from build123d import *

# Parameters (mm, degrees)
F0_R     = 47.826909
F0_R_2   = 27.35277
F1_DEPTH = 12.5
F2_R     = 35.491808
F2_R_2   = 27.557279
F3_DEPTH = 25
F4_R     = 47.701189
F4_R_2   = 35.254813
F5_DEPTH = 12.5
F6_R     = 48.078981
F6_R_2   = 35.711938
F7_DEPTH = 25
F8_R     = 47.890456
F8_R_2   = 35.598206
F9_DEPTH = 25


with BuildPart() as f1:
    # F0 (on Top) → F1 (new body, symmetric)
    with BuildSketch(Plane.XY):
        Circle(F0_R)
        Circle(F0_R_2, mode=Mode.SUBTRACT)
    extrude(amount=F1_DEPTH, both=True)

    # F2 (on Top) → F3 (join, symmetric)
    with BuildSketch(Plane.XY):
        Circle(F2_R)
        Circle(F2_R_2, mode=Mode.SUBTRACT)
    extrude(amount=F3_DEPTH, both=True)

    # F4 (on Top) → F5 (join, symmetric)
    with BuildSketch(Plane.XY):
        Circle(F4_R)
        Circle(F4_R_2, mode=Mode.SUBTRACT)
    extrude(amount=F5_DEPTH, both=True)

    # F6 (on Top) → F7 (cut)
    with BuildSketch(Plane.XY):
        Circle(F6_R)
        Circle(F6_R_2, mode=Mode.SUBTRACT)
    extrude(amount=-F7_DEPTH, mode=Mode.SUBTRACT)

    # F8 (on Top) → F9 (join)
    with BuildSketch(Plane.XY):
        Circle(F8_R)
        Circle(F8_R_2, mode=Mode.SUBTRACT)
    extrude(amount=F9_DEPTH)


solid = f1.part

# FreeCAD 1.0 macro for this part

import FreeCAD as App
import Part
import Sketcher
from FreeCAD import Vector

doc = App.newDocument("Part")
body = doc.addObject("PartDesign::Body", "Body")

# Sketch on XY plane
sketch1 = doc.addObject("Sketcher::SketchObject", "Sketch")
body.addObject(sketch1)
sketch1.AttachmentSupport = (doc.XY_Plane, [""])
sketch1.MapMode = "FlatFace"
sketch1.addGeometry([
    Part.Circle(Vector(0, 0, 0), Vector(0, 0, 1), 47.826909),
    Part.Circle(Vector(0, 0, 0), Vector(0, 0, 1), 27.35277),
], False)
sketch1.addConstraint([
    Sketcher.Constraint("Coincident", 0, 3, -1, 1),
    Sketcher.Constraint("Coincident", 1, 3, -1, 1),
    Sketcher.Constraint("Diameter", 0, 95.653818),
    Sketcher.Constraint("Diameter", 1, 54.70554),
])
pad1 = doc.addObject("PartDesign::Pad", "Pad")
body.addObject(pad1)
pad1.Profile = sketch1
pad1.Length = 25
pad1.Midplane = True

# Sketch on XY plane
sketch2 = doc.addObject("Sketcher::SketchObject", "Sketch001")
body.addObject(sketch2)
sketch2.AttachmentSupport = (doc.XY_Plane, [""])
sketch2.MapMode = "FlatFace"
sketch2.addGeometry([
    Part.Circle(Vector(0, 0, 0), Vector(0, 0, 1), 35.491808),
    Part.Circle(Vector(0, 0, 0), Vector(0, 0, 1), 27.557279),
], False)
sketch2.addConstraint([
    Sketcher.Constraint("Coincident", 0, 3, -1, 1),
    Sketcher.Constraint("Coincident", 1, 3, -1, 1),
    Sketcher.Constraint("Diameter", 1, 55.114558),
    Sketcher.Constraint("Diameter", 0, 70.983616),
])
pad2 = doc.addObject("PartDesign::Pad", "Pad001")
body.addObject(pad2)
pad2.Profile = sketch2
pad2.Length = 50
pad2.Midplane = True

# Sketch on XY plane
sketch3 = doc.addObject("Sketcher::SketchObject", "Sketch002")
body.addObject(sketch3)
sketch3.AttachmentSupport = (doc.XY_Plane, [""])
sketch3.MapMode = "FlatFace"
sketch3.addGeometry([
    Part.Circle(Vector(0, 0, 0), Vector(0, 0, 1), 47.701189),
    Part.Circle(Vector(0, 0, 0), Vector(0, 0, 1), 35.254813),
], False)
sketch3.addConstraint([
    Sketcher.Constraint("Coincident", 0, 3, -1, 1),
    Sketcher.Constraint("Coincident", 1, 3, -1, 1),
    Sketcher.Constraint("Diameter", 0, 95.402378),
    Sketcher.Constraint("Diameter", 1, 70.509626),
])
pad3 = doc.addObject("PartDesign::Pad", "Pad002")
body.addObject(pad3)
pad3.Profile = sketch3
pad3.Length = 25
pad3.Midplane = True

# Sketch on XY plane
sketch4 = doc.addObject("Sketcher::SketchObject", "Sketch003")
body.addObject(sketch4)
sketch4.AttachmentSupport = (doc.XY_Plane, [""])
sketch4.MapMode = "FlatFace"
sketch4.addGeometry([
    Part.Circle(Vector(0, 0, 0), Vector(0, 0, 1), 48.078981),
    Part.Circle(Vector(0, 0, 0), Vector(0, 0, 1), 35.711938),
], False)
sketch4.addConstraint([
    Sketcher.Constraint("Coincident", 0, 3, -1, 1),
    Sketcher.Constraint("Coincident", 1, 3, -1, 1),
    Sketcher.Constraint("Diameter", 0, 96.157962),
    Sketcher.Constraint("Diameter", 1, 71.423876),
])
pocket1 = doc.addObject("PartDesign::Pocket", "Pocket")
body.addObject(pocket1)
pocket1.Profile = sketch4
pocket1.Length = 25

# Sketch on XY plane
sketch5 = doc.addObject("Sketcher::SketchObject", "Sketch004")
body.addObject(sketch5)
sketch5.AttachmentSupport = (doc.XY_Plane, [""])
sketch5.MapMode = "FlatFace"
sketch5.addGeometry([
    Part.Circle(Vector(0, 0, 0), Vector(0, 0, 1), 47.890456),
    Part.Circle(Vector(0, 0, 0), Vector(0, 0, 1), 35.598206),
], False)
sketch5.addConstraint([
    Sketcher.Constraint("Coincident", 0, 3, -1, 1),
    Sketcher.Constraint("Coincident", 1, 3, -1, 1),
    Sketcher.Constraint("Diameter", 0, 95.780912),
    Sketcher.Constraint("Diameter", 1, 71.196412),
])
pad4 = doc.addObject("PartDesign::Pad", "Pad003")
body.addObject(pad4)
pad4.Profile = sketch5
pad4.Length = 25

doc.recompute()
